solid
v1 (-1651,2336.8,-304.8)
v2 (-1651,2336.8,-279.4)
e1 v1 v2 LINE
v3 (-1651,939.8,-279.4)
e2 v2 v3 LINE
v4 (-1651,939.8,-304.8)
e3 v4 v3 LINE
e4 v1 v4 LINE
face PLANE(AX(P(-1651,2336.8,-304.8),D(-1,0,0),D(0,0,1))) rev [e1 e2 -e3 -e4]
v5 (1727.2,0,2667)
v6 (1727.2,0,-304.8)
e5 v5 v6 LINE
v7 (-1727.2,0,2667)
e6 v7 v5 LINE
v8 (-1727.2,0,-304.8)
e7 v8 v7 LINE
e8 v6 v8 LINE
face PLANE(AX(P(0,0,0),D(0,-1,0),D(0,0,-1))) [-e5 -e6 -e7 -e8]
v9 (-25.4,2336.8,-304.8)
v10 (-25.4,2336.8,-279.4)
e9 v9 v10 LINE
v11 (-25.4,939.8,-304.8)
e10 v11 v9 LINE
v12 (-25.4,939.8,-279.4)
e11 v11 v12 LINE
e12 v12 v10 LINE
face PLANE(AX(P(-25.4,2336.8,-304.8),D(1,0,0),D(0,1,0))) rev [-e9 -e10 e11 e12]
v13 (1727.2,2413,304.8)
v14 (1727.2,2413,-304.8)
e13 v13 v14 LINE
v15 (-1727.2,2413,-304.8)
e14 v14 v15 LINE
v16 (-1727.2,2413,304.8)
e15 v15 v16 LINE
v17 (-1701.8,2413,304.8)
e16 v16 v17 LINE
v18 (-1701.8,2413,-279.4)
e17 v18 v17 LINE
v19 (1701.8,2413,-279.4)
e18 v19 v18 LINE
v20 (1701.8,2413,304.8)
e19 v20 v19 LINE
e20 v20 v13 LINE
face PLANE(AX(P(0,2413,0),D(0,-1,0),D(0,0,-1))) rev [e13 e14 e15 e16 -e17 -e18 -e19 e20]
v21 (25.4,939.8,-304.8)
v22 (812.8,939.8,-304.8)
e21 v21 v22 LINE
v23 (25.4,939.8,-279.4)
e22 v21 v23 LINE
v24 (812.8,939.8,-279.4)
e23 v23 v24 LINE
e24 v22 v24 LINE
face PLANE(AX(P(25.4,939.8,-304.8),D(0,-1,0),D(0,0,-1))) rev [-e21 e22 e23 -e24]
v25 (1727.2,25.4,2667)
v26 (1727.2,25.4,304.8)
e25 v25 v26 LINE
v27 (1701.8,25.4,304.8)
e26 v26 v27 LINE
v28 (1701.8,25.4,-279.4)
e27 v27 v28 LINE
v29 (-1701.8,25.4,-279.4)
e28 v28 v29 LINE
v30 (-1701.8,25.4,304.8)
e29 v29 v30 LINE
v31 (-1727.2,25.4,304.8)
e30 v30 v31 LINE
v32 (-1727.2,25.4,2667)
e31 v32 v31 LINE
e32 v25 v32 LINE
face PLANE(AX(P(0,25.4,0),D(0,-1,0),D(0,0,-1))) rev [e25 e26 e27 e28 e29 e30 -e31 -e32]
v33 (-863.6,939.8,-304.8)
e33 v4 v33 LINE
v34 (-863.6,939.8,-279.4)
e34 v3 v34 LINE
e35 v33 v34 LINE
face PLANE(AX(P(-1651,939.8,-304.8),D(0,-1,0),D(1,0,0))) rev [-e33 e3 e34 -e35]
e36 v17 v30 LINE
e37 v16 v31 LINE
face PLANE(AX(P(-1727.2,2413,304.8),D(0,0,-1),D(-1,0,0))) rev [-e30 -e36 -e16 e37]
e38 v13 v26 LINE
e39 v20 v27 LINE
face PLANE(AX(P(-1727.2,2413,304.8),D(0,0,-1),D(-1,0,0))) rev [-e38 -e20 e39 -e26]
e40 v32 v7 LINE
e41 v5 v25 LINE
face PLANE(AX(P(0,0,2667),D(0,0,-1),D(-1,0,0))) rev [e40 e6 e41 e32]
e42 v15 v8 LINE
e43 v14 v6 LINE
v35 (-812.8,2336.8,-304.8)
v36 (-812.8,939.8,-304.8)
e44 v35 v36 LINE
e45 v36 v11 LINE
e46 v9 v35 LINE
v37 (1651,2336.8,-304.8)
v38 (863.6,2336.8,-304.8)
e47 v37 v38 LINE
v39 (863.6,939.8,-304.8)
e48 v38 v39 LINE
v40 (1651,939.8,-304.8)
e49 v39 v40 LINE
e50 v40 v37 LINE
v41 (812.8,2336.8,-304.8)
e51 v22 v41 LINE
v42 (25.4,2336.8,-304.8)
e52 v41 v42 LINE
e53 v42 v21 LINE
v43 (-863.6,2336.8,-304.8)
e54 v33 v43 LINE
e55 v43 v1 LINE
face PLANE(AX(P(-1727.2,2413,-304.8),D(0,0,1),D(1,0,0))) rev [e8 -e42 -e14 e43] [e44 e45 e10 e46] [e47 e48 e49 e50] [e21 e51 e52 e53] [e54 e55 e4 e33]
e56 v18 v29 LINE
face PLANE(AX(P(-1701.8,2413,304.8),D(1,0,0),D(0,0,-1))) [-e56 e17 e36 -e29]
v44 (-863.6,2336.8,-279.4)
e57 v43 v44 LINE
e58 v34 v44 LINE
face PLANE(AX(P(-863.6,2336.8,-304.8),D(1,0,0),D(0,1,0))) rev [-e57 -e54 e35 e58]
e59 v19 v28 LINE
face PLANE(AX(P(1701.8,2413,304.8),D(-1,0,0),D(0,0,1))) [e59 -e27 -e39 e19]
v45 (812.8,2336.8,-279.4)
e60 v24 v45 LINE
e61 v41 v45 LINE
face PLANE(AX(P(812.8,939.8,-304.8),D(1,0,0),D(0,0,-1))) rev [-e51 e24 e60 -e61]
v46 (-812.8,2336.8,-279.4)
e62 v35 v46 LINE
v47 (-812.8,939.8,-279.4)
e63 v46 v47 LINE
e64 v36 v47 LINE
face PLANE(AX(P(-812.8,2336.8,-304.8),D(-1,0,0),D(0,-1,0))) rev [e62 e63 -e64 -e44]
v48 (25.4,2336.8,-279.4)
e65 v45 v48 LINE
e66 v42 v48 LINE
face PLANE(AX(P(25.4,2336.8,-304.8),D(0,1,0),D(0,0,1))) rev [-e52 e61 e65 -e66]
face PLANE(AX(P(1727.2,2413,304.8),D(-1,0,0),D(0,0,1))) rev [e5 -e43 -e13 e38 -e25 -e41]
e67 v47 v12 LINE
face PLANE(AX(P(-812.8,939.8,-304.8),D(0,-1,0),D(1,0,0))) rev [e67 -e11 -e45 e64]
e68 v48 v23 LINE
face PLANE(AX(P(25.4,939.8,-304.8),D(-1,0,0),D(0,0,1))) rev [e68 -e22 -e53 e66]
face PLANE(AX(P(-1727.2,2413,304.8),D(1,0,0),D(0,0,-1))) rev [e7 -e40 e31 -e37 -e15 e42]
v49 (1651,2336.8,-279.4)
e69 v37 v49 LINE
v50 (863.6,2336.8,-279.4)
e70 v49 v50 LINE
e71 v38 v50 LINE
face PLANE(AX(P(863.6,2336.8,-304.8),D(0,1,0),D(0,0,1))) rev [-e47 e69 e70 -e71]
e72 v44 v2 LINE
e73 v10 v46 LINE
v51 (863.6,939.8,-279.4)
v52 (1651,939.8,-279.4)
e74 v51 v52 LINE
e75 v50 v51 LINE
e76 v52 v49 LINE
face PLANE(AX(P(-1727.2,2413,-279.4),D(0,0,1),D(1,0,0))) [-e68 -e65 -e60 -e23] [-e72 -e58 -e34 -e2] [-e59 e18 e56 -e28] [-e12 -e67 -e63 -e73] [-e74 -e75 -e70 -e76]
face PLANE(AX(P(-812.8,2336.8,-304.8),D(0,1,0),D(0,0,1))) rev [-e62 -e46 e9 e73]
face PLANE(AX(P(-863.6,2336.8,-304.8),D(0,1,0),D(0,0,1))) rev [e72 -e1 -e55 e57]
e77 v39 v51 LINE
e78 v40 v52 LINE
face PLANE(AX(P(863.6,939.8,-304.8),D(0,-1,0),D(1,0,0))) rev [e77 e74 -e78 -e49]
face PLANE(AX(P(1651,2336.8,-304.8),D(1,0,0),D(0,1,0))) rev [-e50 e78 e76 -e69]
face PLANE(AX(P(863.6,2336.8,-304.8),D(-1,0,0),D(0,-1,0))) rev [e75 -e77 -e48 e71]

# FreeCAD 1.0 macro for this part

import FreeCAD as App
import Part
import Sketcher
Q = App.Units.Quantity


def faces_at(feature, points):
    """Names of the faces that lie closest to the given points."""
    faces = feature.Shape.Faces
    near = lambda p: min(range(len(faces)), key=lambda i: faces[i].distToShape(Part.Vertex(*p))[0])
    return sorted({f"Face{near(p) + 1}" for p in points})


def add_polygon(sketch, points):
    """Adds a closed chain of lines whose ends are joined by coincident constraints."""
    first, n = sketch.GeometryCount, len(points)
    for a, b in zip(points, points[1:] + points[:1]):
        sketch.addGeometry(Part.LineSegment(App.Vector(*a, 0), App.Vector(*b, 0)), False)
    for i in range(n):
        sketch.addConstraint(Sketcher.Constraint("Coincident", first + i, 2, first + (i + 1) % n, 1))

doc = App.newDocument("Part")
body = doc.addObject("PartDesign::Body", "Body")

sketch1 = doc.addObject("Sketcher::SketchObject", "Sketch")
body.addObject(sketch1)
sketch1.AttachmentSupport = (doc.XZ_Plane, [""])
sketch1.MapMode = "FlatFace"
add_polygon(sketch1, [(-1727, -305), (-1727, 305), (1727, 305), (1727, -305)])
sketch1.addConstraint(Sketcher.Constraint("Vertical", 0))
sketch1.addConstraint(Sketcher.Constraint("Horizontal", 1))
sketch1.addConstraint(Sketcher.Constraint("Vertical", 2))
sketch1.addConstraint(Sketcher.Constraint("Horizontal", 3))
sketch1.addConstraint(Sketcher.Constraint("Symmetric", 0, 2, 2, 2, -1, 1))
sketch1.addConstraint(Sketcher.Constraint("DistanceX", 1, 1, 1, 2, Q("136 in")))
sketch1.addConstraint(Sketcher.Constraint("DistanceY", 0, 1, 0, 2, Q("24 in")))
pad1 = doc.addObject("PartDesign::Pad", "Pad")
body.addObject(pad1)
pad1.Profile = sketch1
pad1.Length = Q("95 in")
pad1.Reversed = True
doc.recompute()

thickness = doc.addObject("PartDesign::Thickness", "Thickness")
body.addObject(thickness)
thickness.Base = (pad1, faces_at(pad1, [(0, 2413, 0), (0, 1206.5, 304.8)]))
thickness.Value = Q("1 in")
thickness.Reversed = True
thickness.Join = "Intersection"

sketch2 = doc.addObject("Sketcher::SketchObject", "Sketch001")
body.addObject(sketch2)
sketch2.AttachmentSupport = (doc.XY_Plane, [""])
sketch2.MapMode = "FlatFace"
sketch2.AttachmentOffset = App.Placement(App.Vector(0, 0, 12 * 25.4), App.Rotation())
add_polygon(sketch2, [(-1727, 25), (-1727, 0), (1727, 0), (1727, 25)])
sketch2.addConstraint(Sketcher.Constraint("Vertical", 0))
sketch2.addConstraint(Sketcher.Constraint("Horizontal", 1))
sketch2.addConstraint(Sketcher.Constraint("Vertical", 2))
sketch2.addConstraint(Sketcher.Constraint("Horizontal", 3))
sketch2.addConstraint(Sketcher.Constraint("Symmetric", 0, 2, 1, 2, -1, 1))
sketch2.addConstraint(Sketcher.Constraint("DistanceX", 1, 1, 1, 2, Q("136 in")))
sketch2.addConstraint(Sketcher.Constraint("DistanceY", 0, 2, 0, 1, Q("1 in")))
pad2 = doc.addObject("PartDesign::Pad", "Pad001")
body.addObject(pad2)
pad2.Profile = sketch2
pad2.Length = Q("93 in")

sketch3 = doc.addObject("Sketcher::SketchObject", "Sketch002")
body.addObject(sketch3)
sketch3.AttachmentSupport = (doc.XY_Plane, [""])
sketch3.MapMode = "FlatFace"
sketch3.AttachmentOffset = App.Placement(App.Vector(0, 0, -11 * 25.4), App.Rotation())
add_polygon(sketch3, [(-1651, 2337), (-1651, 940), (-864, 940), (-864, 2337)])
add_polygon(sketch3, [(-813, 2337), (-813, 940), (-25, 940), (-25, 2337)])
add_polygon(sketch3, [(25, 2337), (25, 940), (813, 940), (813, 2337)])
add_polygon(sketch3, [(864, 2337), (864, 940), (1651, 940), (1651, 2337)])
sketch3.addConstraint(Sketcher.Constraint("Vertical", 0))
sketch3.addConstraint(Sketcher.Constraint("Horizontal", 1))
sketch3.addConstraint(Sketcher.Constraint("Vertical", 2))
sketch3.addConstraint(Sketcher.Constraint("Horizontal", 3))
sketch3.addConstraint(Sketcher.Constraint("Vertical", 4))
sketch3.addConstraint(Sketcher.Constraint("Horizontal", 5))
sketch3.addConstraint(Sketcher.Constraint("Vertical", 6))
sketch3.addConstraint(Sketcher.Constraint("Horizontal", 7))
sketch3.addConstraint(Sketcher.Constraint("Vertical", 8))
sketch3.addConstraint(Sketcher.Constraint("Horizontal", 9))
sketch3.addConstraint(Sketcher.Constraint("Vertical", 10))
sketch3.addConstraint(Sketcher.Constraint("Horizontal", 11))
sketch3.addConstraint(Sketcher.Constraint("Vertical", 12))
sketch3.addConstraint(Sketcher.Constraint("Horizontal", 13))
sketch3.addConstraint(Sketcher.Constraint("Vertical", 14))
sketch3.addConstraint(Sketcher.Constraint("Horizontal", 15))
sketch3.addConstraint(Sketcher.Constraint("Symmetric", 5, 2, 8, 2, -2))
sketch3.addConstraint(Sketcher.Constraint("Symmetric", 7, 2, 10, 2, -2))
sketch3.addConstraint(Sketcher.Constraint("Symmetric", 1, 2, 12, 2, -2))
sketch3.addConstraint(Sketcher.Constraint("Symmetric", 3, 2, 14, 2, -2))
sketch3.addConstraint(Sketcher.Constraint("Horizontal", 1, 2, 4, 2))
sketch3.addConstraint(Sketcher.Constraint("Horizontal", 3, 2, 6, 2))
sketch3.addConstraint(Sketcher.Constraint("Equal", 3, 5))
sketch3.addConstraint(Sketcher.Constraint("DistanceX", 1, 1, 1, 2, Q("31 in")))
sketch3.addConstraint(Sketcher.Constraint("DistanceY", 0, 2, 0, 1, Q("55 in")))
sketch3.addConstraint(Sketcher.Constraint("DistanceX", 0, 2, -1, 1, Q("65 in")))
sketch3.addConstraint(Sketcher.Constraint("DistanceY", -1, 1, 0, 2, Q("37 in")))
sketch3.addConstraint(Sketcher.Constraint("DistanceX", 4, 2, -1, 1, Q("32 in")))
pocket1 = doc.addObject("PartDesign::Pocket", "Pocket")
body.addObject(pocket1)
pocket1.Profile = sketch3
pocket1.Length = Q("1 in")

doc.recompute()
